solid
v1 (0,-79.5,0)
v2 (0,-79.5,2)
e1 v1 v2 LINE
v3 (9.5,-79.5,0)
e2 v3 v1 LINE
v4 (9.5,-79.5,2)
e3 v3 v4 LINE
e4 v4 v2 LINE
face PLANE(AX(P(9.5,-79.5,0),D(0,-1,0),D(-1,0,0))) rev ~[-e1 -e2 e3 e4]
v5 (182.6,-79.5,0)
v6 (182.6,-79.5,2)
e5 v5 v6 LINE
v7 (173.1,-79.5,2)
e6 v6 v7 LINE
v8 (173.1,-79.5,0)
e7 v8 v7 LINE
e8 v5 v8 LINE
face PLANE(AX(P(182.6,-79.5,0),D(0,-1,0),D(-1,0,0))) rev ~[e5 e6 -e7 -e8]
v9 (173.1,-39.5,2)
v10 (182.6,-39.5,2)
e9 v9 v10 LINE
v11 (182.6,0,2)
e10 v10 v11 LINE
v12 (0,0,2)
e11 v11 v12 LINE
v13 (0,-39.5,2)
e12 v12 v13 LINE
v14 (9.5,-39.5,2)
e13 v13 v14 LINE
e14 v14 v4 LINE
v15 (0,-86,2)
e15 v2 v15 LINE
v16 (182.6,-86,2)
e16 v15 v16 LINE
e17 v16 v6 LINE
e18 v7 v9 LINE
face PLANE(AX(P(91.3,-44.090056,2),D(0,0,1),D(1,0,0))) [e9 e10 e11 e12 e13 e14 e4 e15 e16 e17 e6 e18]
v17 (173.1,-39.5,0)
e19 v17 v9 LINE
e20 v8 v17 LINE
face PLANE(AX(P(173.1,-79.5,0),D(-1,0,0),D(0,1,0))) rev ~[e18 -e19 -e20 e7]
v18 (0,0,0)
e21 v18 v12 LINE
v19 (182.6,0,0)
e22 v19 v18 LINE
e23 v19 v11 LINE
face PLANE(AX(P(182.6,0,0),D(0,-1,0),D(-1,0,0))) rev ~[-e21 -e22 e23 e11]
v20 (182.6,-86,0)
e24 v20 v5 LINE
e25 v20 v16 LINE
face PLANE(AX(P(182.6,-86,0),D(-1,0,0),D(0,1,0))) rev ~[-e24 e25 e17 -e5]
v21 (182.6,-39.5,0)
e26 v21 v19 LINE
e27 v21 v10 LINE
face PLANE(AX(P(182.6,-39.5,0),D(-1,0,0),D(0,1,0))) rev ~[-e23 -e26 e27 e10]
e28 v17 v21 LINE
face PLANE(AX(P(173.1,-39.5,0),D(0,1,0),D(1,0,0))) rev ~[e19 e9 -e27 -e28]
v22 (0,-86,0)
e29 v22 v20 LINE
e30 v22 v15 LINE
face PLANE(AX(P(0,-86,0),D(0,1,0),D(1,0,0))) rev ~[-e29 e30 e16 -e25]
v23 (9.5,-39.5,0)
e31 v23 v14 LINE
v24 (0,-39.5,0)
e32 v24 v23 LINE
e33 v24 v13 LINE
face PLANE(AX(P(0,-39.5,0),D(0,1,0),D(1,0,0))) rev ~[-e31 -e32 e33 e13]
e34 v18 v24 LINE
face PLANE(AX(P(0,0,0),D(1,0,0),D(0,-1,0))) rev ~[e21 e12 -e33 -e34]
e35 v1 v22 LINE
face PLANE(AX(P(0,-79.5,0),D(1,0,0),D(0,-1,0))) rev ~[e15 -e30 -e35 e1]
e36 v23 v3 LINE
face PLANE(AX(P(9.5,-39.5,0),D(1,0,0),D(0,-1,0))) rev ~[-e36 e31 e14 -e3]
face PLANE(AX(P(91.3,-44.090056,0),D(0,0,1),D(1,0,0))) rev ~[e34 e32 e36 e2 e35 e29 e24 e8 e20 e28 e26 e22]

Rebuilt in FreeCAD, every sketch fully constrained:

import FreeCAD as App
import Part
import Sketcher

doc = App.newDocument("Part")
body = doc.addObject("PartDesign::Body", "Body")

sketch1 = body.newObject("Sketcher::SketchObject", "Sketch")
sketch1.AttachmentSupport = (doc.getObject("XY_Plane"), [""])
sketch1.MapMode = "FlatFace"
sketch1.addGeometry([
    Part.LineSegment(App.Vector(0, -80, 0), App.Vector(0, -86, 0)),
    Part.LineSegment(App.Vector(0, -86, 0), App.Vector(183, -86, 0)),
    Part.LineSegment(App.Vector(183, -86, 0), App.Vector(183, -80, 0)),
    Part.LineSegment(App.Vector(183, -80, 0), App.Vector(173, -80, 0)),
    Part.LineSegment(App.Vector(173, -80, 0), App.Vector(173, -40, 0)),
    Part.LineSegment(App.Vector(173, -40, 0), App.Vector(183, -40, 0)),
    Part.LineSegment(App.Vector(183, -40, 0), App.Vector(183, 0, 0)),
    Part.LineSegment(App.Vector(183, 0, 0), App.Vector(0, 0, 0)),
    Part.LineSegment(App.Vector(0, 0, 0), App.Vector(0, -40, 0)),
    Part.LineSegment(App.Vector(0, -40, 0), App.Vector(10, -40, 0)),
    Part.LineSegment(App.Vector(10, -40, 0), App.Vector(10, -80, 0)),
    Part.LineSegment(App.Vector(10, -80, 0), App.Vector(0, -80, 0)),
], False)
sketch1.addConstraint([
    Sketcher.Constraint("Coincident", 0, 2, 1, 1),
    Sketcher.Constraint("Coincident", 1, 2, 2, 1),
    Sketcher.Constraint("Coincident", 2, 2, 3, 1),
    Sketcher.Constraint("Coincident", 3, 2, 4, 1),
    Sketcher.Constraint("Coincident", 4, 2, 5, 1),
    Sketcher.Constraint("Coincident", 5, 2, 6, 1),
    Sketcher.Constraint("Coincident", 6, 2, 7, 1),
    Sketcher.Constraint("Coincident", 7, 2, 8, 1),
    Sketcher.Constraint("Coincident", 8, 2, 9, 1),
    Sketcher.Constraint("Coincident", 9, 2, 10, 1),
    Sketcher.Constraint("Coincident", 10, 2, 11, 1),
    Sketcher.Constraint("Coincident", 11, 2, 0, 1),
    Sketcher.Constraint("Vertical", 0),
    Sketcher.Constraint("Horizontal", 1),
    Sketcher.Constraint("Vertical", 2),
    Sketcher.Constraint("Horizontal", 3),
    Sketcher.Constraint("Vertical", 4),
    Sketcher.Constraint("Horizontal", 5),
    Sketcher.Constraint("Vertical", 6),
    Sketcher.Constraint("Horizontal", 7),
    Sketcher.Constraint("Vertical", 8),
    Sketcher.Constraint("Horizontal", 9),
    Sketcher.Constraint("Vertical", 10),
    Sketcher.Constraint("Horizontal", 11),
    Sketcher.Constraint("Coincident", 7, 2, -1, 1),
    Sketcher.Constraint("PointOnObject", 0, 2, -2),
    Sketcher.Constraint("Horizontal", 5, 2, 8, 2),
    Sketcher.Constraint("Horizontal", 3, 2, 10, 2),
    Sketcher.Constraint("Vertical", 2, 2, 5, 2),
    Sketcher.Constraint("Equal", 5, 9),
    Sketcher.Constraint("DistanceY", 4, 1, 4, 2, 40.0),
    Sketcher.Constraint("DistanceX", 1, 1, 1, 2, 182.6),
    Sketcher.Constraint("DistanceX", 3, 2, 3, 1, 9.5),
    Sketcher.Constraint("DistanceY", 0, 2, 0, 1, 6.5),
    Sketcher.Constraint("DistanceY", 6, 1, 6, 2, 39.5),
])
pad1 = body.newObject("PartDesign::Pad", "Pad")
pad1.Profile = sketch1
pad1.Length = 2

doc.recompute()
